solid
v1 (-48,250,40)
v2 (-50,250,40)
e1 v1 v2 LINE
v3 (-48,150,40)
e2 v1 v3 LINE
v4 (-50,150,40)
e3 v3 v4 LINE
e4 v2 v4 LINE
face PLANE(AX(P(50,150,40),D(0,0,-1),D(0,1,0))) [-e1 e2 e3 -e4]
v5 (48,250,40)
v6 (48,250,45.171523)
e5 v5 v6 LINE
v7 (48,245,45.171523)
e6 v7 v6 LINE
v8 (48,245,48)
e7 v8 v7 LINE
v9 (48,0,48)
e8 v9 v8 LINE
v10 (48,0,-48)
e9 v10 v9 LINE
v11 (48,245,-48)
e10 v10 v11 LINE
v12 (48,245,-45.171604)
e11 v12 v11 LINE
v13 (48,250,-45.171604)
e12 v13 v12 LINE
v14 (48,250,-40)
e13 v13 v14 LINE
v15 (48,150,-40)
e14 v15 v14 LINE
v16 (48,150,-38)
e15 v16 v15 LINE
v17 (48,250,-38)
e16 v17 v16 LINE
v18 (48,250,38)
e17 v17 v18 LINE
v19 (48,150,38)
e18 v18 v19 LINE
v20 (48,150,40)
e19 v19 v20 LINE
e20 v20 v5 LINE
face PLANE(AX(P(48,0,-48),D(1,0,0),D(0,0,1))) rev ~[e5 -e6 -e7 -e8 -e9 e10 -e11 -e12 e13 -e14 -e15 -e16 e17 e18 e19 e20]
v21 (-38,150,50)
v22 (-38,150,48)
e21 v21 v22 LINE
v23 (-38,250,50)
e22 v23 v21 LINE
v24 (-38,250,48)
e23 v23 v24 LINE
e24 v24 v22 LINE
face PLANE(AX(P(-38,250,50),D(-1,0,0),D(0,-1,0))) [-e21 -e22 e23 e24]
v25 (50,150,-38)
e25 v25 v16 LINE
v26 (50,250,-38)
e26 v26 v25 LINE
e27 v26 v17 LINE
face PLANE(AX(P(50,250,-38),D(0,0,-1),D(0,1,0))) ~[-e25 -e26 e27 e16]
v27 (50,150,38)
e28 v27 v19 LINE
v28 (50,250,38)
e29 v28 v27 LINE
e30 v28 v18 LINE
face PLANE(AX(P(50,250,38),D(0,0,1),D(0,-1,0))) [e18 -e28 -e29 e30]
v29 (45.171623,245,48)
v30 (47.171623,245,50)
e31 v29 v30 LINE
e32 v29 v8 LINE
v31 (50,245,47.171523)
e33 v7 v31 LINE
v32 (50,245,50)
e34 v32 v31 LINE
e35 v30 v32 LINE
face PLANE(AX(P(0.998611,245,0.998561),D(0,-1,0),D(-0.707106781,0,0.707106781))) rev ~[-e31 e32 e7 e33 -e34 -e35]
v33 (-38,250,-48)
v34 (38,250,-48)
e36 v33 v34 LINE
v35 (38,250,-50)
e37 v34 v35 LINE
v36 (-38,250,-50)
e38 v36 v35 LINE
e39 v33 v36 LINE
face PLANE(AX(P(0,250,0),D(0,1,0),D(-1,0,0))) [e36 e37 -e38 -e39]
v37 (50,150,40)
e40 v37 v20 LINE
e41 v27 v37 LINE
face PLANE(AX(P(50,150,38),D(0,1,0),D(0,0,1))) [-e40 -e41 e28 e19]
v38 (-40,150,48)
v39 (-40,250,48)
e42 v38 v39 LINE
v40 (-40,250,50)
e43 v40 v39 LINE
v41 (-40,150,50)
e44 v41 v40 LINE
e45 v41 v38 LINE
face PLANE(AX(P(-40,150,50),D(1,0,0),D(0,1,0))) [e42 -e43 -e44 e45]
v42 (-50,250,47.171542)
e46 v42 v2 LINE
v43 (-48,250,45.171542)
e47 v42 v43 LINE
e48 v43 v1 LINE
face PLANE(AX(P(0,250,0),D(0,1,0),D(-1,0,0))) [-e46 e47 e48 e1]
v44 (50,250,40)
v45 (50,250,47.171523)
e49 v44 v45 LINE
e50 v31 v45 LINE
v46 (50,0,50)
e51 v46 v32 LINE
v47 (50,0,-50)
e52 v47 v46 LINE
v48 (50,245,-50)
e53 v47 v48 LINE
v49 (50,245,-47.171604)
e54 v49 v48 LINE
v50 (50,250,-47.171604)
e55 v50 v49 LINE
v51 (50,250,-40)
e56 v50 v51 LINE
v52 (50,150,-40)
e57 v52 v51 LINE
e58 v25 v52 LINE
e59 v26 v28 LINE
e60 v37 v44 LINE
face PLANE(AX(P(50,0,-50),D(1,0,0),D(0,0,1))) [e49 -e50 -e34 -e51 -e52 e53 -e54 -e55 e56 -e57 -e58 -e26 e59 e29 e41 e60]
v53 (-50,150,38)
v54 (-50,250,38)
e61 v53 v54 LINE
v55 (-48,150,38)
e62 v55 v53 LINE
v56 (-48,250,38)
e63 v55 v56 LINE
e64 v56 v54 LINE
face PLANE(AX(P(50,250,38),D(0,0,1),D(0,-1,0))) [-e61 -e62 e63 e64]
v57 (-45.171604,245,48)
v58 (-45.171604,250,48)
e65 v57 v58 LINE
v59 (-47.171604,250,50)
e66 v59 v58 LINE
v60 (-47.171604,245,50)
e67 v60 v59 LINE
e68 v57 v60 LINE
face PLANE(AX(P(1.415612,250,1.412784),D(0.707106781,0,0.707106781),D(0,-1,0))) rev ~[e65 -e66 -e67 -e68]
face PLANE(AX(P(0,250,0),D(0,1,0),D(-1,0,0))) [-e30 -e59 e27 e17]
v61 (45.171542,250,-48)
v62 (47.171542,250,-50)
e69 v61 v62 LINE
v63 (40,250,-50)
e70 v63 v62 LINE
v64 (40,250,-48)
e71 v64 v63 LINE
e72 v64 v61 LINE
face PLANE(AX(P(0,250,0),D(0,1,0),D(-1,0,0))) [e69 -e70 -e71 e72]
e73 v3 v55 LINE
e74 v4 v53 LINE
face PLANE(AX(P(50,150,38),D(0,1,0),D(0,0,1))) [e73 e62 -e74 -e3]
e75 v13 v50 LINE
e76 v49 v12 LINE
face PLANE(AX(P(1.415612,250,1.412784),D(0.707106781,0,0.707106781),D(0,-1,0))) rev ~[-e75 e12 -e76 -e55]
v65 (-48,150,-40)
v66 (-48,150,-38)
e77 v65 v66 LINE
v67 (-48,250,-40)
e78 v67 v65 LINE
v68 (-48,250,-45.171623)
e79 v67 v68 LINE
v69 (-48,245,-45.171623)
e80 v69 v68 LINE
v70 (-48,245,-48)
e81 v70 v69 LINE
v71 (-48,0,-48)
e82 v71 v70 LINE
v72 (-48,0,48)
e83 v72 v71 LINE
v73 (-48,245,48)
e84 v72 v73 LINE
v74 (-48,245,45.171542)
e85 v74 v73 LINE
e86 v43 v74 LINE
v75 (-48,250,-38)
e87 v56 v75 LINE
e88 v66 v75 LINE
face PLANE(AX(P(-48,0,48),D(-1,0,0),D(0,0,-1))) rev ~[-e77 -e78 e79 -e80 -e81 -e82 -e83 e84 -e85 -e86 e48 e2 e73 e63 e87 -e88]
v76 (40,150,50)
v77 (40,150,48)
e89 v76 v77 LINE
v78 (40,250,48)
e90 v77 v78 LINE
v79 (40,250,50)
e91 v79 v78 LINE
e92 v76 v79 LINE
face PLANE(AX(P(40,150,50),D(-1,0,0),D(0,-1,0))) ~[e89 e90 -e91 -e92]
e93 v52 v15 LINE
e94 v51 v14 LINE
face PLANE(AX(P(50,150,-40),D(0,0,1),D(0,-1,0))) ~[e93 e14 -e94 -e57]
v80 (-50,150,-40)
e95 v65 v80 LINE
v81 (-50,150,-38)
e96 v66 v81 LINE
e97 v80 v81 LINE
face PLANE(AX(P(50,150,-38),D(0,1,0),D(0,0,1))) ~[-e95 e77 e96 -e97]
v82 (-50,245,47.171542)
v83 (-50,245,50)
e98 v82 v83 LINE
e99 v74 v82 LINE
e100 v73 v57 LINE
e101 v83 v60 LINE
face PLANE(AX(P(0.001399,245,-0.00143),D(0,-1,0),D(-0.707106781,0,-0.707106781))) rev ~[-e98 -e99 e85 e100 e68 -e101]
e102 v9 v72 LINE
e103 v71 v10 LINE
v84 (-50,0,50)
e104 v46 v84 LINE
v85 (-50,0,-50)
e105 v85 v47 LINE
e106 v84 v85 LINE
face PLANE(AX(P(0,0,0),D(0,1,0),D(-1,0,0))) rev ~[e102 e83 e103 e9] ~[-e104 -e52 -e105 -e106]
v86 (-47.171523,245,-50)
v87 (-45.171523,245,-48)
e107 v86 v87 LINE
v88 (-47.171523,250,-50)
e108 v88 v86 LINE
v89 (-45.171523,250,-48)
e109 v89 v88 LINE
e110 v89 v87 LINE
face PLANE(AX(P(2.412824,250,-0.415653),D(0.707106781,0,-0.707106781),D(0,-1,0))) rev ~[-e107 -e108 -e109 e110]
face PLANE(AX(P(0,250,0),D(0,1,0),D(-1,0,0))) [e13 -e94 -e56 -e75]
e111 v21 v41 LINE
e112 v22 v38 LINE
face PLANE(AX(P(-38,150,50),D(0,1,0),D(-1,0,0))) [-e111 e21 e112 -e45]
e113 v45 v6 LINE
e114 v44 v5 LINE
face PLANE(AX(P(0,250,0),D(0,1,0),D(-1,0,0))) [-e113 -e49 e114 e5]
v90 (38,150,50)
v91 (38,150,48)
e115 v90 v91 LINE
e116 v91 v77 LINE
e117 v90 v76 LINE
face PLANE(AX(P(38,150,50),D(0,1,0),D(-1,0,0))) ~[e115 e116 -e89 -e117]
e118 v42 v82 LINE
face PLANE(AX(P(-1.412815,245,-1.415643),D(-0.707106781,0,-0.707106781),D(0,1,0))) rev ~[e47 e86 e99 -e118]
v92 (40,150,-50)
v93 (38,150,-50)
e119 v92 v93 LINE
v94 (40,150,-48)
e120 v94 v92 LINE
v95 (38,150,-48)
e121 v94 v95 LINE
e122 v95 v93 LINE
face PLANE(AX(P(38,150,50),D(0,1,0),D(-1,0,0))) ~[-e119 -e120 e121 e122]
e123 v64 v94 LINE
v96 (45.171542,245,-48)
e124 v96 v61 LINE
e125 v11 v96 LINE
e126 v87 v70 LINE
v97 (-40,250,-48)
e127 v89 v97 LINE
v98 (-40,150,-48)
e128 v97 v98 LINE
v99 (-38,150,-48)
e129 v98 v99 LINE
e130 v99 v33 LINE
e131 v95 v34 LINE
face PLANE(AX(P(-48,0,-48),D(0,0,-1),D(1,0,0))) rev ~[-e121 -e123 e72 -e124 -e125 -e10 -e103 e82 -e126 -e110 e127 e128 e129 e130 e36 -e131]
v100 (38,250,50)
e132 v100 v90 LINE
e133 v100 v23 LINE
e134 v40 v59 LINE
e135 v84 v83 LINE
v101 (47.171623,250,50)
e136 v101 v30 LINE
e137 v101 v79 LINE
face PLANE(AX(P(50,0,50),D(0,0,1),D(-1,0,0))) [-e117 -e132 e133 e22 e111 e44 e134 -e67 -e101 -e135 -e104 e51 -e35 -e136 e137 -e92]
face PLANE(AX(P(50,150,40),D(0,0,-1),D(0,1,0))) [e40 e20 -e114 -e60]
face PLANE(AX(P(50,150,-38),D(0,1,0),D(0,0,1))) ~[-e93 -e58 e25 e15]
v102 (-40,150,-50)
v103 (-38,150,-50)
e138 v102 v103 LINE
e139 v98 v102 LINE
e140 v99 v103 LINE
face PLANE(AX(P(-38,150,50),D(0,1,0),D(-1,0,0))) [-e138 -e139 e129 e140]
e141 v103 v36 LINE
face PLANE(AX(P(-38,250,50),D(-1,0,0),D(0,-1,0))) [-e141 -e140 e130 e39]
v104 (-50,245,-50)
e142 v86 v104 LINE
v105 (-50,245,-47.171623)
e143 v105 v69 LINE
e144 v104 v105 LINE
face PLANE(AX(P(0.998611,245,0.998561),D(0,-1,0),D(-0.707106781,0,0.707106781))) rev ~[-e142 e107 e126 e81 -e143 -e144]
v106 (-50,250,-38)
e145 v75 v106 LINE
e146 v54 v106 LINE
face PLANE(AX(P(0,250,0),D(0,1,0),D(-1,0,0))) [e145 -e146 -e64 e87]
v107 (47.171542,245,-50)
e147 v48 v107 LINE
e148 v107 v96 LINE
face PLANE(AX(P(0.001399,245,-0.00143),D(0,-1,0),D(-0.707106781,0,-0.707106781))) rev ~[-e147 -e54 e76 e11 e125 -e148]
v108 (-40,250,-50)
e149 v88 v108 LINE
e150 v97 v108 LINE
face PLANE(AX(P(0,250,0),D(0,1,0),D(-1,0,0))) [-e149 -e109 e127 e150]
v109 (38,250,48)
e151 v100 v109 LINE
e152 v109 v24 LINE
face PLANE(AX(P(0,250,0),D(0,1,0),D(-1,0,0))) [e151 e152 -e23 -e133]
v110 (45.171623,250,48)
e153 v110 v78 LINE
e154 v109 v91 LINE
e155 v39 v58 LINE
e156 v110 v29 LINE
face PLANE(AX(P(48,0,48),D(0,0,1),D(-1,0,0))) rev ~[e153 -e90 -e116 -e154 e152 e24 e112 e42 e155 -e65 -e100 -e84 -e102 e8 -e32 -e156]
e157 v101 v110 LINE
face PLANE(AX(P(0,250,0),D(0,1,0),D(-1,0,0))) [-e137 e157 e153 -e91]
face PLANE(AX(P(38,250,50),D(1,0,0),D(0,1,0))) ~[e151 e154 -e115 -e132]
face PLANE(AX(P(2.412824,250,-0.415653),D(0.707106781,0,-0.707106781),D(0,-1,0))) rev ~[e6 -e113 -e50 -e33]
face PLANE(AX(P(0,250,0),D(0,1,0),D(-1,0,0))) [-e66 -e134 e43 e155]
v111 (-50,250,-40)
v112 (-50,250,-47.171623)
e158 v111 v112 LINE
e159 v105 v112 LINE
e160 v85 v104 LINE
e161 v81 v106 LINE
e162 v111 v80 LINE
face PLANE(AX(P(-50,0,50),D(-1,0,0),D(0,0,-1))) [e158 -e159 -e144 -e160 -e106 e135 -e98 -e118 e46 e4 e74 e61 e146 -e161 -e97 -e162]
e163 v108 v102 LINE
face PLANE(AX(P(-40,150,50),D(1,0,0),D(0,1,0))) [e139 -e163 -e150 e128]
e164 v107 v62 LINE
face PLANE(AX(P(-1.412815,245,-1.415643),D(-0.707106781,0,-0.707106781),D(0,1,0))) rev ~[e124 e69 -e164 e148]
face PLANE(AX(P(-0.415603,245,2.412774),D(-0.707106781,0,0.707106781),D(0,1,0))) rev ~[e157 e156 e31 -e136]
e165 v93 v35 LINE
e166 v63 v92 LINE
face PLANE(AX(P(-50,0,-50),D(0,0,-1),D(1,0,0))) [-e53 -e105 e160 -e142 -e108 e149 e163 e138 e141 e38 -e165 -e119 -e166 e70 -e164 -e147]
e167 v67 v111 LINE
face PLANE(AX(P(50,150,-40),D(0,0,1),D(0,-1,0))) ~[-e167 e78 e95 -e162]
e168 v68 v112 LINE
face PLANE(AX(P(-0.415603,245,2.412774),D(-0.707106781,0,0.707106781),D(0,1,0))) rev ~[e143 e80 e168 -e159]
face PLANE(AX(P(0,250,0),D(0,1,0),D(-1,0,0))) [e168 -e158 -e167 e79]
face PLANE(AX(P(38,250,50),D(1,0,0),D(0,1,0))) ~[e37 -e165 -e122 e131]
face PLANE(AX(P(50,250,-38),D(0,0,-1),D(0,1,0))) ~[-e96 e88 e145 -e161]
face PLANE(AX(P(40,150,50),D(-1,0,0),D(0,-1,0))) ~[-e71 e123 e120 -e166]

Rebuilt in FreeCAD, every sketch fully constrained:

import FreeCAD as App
import Part
import Sketcher
from FreeCAD import Vector

doc = App.newDocument("Part")
body = doc.addObject("PartDesign::Body", "Body")

# Sketch on XZ plane
sketch1 = body.newObject("Sketcher::SketchObject", "Sketch")
sketch1.AttachmentSupport = (doc.getObject("XZ_Plane"), [""])
sketch1.MapMode = "FlatFace"
sketch1.addGeometry(Part.LineSegment(Vector(-50, 50, 0), Vector(50, 50, 0)), False)
sketch1.addGeometry(Part.LineSegment(Vector(50, 50, 0), Vector(50, -50, 0)), False)
sketch1.addGeometry(Part.LineSegment(Vector(50, -50, 0), Vector(-50, -50, 0)), False)
sketch1.addGeometry(Part.LineSegment(Vector(-50, -50, 0), Vector(-50, 50, 0)), False)
sketch1.addGeometry(Part.LineSegment(Vector(48, -48, 0), Vector(48, 48, 0)), False)
sketch1.addGeometry(Part.LineSegment(Vector(48, 48, 0), Vector(-48, 48, 0)), False)
sketch1.addGeometry(Part.LineSegment(Vector(-48, 48, 0), Vector(-48, -48, 0)), False)
sketch1.addGeometry(Part.LineSegment(Vector(-48, -48, 0), Vector(48, -48, 0)), False)
sketch1.addConstraint(Sketcher.Constraint("Coincident", 0, 2, 1, 1))
sketch1.addConstraint(Sketcher.Constraint("Coincident", 1, 2, 2, 1))
sketch1.addConstraint(Sketcher.Constraint("Coincident", 2, 2, 3, 1))
sketch1.addConstraint(Sketcher.Constraint("Coincident", 3, 2, 0, 1))
sketch1.addConstraint(Sketcher.Constraint("Coincident", 4, 2, 5, 1))
sketch1.addConstraint(Sketcher.Constraint("Coincident", 5, 2, 6, 1))
sketch1.addConstraint(Sketcher.Constraint("Coincident", 6, 2, 7, 1))
sketch1.addConstraint(Sketcher.Constraint("Coincident", 7, 2, 4, 1))
sketch1.addConstraint(Sketcher.Constraint("Horizontal", 0))
sketch1.addConstraint(Sketcher.Constraint("Vertical", 1))
sketch1.addConstraint(Sketcher.Constraint("Horizontal", 2))
sketch1.addConstraint(Sketcher.Constraint("Vertical", 3))
sketch1.addConstraint(Sketcher.Constraint("Vertical", 4))
sketch1.addConstraint(Sketcher.Constraint("Horizontal", 5))
sketch1.addConstraint(Sketcher.Constraint("Vertical", 6))
sketch1.addConstraint(Sketcher.Constraint("Horizontal", 7))
sketch1.addConstraint(Sketcher.Constraint("Symmetric", 0, 2, 2, 2, -1, 1))
sketch1.addConstraint(Sketcher.Constraint("Symmetric", 4, 2, 6, 2, -1, 1))
sketch1.addConstraint(Sketcher.Constraint("Equal", 2, 1))
sketch1.addConstraint(Sketcher.Constraint("Equal", 7, 4))
sketch1.addConstraint(Sketcher.Constraint("DistanceX", 0, 1, 0, 2, 100.0))
sketch1.addConstraint(Sketcher.Constraint("DistanceX", 4, 2, 0, 2, 2.0))
pad1 = body.newObject("PartDesign::Pad", "Pad")
pad1.Profile = sketch1
pad1.Length = 250
pad1.Reversed = True

# Sketch on YZ plane
sketch2 = body.newObject("Sketcher::SketchObject", "Sketch001")
sketch2.AttachmentSupport = (doc.getObject("YZ_Plane"), [""])
sketch2.MapMode = "FlatFace"
sketch2.AttachmentOffset = App.Placement(Vector(0, 0, 50), App.Rotation())
sketch2.addGeometry(Part.LineSegment(Vector(250, 38, 0), Vector(250, 40, 0)), False)
sketch2.addGeometry(Part.LineSegment(Vector(250, 40, 0), Vector(150, 40, 0)), False)
sketch2.addGeometry(Part.LineSegment(Vector(150, 40, 0), Vector(150, 38, 0)), False)
sketch2.addGeometry(Part.LineSegment(Vector(150, 38, 0), Vector(250, 38, 0)), False)
sketch2.addConstraint(Sketcher.Constraint("Coincident", 0, 2, 1, 1))
sketch2.addConstraint(Sketcher.Constraint("Coincident", 1, 2, 2, 1))
sketch2.addConstraint(Sketcher.Constraint("Coincident", 2, 2, 3, 1))
sketch2.addConstraint(Sketcher.Constraint("Coincident", 3, 2, 0, 1))
sketch2.addConstraint(Sketcher.Constraint("Vertical", 0))
sketch2.addConstraint(Sketcher.Constraint("Horizontal", 1))
sketch2.addConstraint(Sketcher.Constraint("Vertical", 2))
sketch2.addConstraint(Sketcher.Constraint("Horizontal", 3))
sketch2.addConstraint(Sketcher.Constraint("DistanceX", 1, 2, 1, 1, 100.0))
sketch2.addConstraint(Sketcher.Constraint("DistanceY", 0, 1, 0, 2, 2.0))
sketch2.addConstraint(Sketcher.Constraint("DistanceX", -1, 1, 0, 2, 250.0))
sketch2.addConstraint(Sketcher.Constraint("DistanceY", -1, 1, 0, 2, 40.0))
pocket1 = body.newObject("PartDesign::Pocket", "Pocket")
pocket1.Profile = sketch2
pocket1.Length = 220
doc.recompute()

mirrored = body.newObject("PartDesign::Mirrored", "Mirrored")
mirrored.Originals = [pocket1]
mirrored.MirrorPlane = (doc.getObject("XY_Plane"), [""])
body.Tip = mirrored

# Sketch on XY plane
sketch3 = body.newObject("Sketcher::SketchObject", "Sketch002")
sketch3.AttachmentSupport = (doc.getObject("XY_Plane"), [""])
sketch3.MapMode = "FlatFace"
sketch3.AttachmentOffset = App.Placement(Vector(0, 0, 50), App.Rotation())
sketch3.addGeometry(Part.LineSegment(Vector(-38, 250, 0), Vector(-40, 250, 0)), False)
sketch3.addGeometry(Part.LineSegment(Vector(-40, 250, 0), Vector(-40, 150, 0)), False)
sketch3.addGeometry(Part.LineSegment(Vector(-40, 150, 0), Vector(-38, 150, 0)), False)
sketch3.addGeometry(Part.LineSegment(Vector(-38, 150, 0), Vector(-38, 250, 0)), False)
sketch3.addConstraint(Sketcher.Constraint("Coincident", 0, 2, 1, 1))
sketch3.addConstraint(Sketcher.Constraint("Coincident", 1, 2, 2, 1))
sketch3.addConstraint(Sketcher.Constraint("Coincident", 2, 2, 3, 1))
sketch3.addConstraint(Sketcher.Constraint("Coincident", 3, 2, 0, 1))
sketch3.addConstraint(Sketcher.Constraint("Horizontal", 0))
sketch3.addConstraint(Sketcher.Constraint("Vertical", 1))
sketch3.addConstraint(Sketcher.Constraint("Horizontal", 2))
sketch3.addConstraint(Sketcher.Constraint("Vertical", 3))
sketch3.addConstraint(Sketcher.Constraint("DistanceX", 0, 2, 0, 1, 2.0))
sketch3.addConstraint(Sketcher.Constraint("DistanceY", 1, 2, 1, 1, 100.0))
sketch3.addConstraint(Sketcher.Constraint("DistanceX", 0, 2, -1, 1, 40.0))
sketch3.addConstraint(Sketcher.Constraint("DistanceY", -1, 1, 0, 2, 250.0))
pocket2 = body.newObject("PartDesign::Pocket", "Pocket001")
pocket2.Profile = sketch3
pocket2.Length = 220
doc.recompute()

mirrored2 = body.newObject("PartDesign::Mirrored", "Mirrored001")
mirrored2.Originals = [pocket2]
mirrored2.MirrorPlane = (doc.getObject("YZ_Plane"), [""])
body.Tip = mirrored2

# Sketch on an angled plane
sketch4 = body.newObject("Sketcher::SketchObject", "Sketch003")
sketch4.Placement = App.Placement(Vector(50, 104, 50), App.Rotation(Vector(0, -1, 0), Vector(0.707106781, 0, 0.707106781), Vector(-0.707106781, 0, 0.707106781), "ZXY"))
sketch4.addGeometry(Part.LineSegment(Vector(-146, -72.7, 0), Vector(-141, -72.7, 0)), False)
sketch4.addGeometry(Part.LineSegment(Vector(-141, -72.7, 0), Vector(-141, -68.7, 0)), False)
sketch4.addGeometry(Part.LineSegment(Vector(-141, -68.7, 0), Vector(-146, -68.7, 0)), False)
sketch4.addGeometry(Part.LineSegment(Vector(-146, -68.7, 0), Vector(-146, -72.7, 0)), False)
sketch4.addConstraint(Sketcher.Constraint("Coincident", 0, 2, 1, 1))
sketch4.addConstraint(Sketcher.Constraint("Coincident", 1, 2, 2, 1))
sketch4.addConstraint(Sketcher.Constraint("Coincident", 2, 2, 3, 1))
sketch4.addConstraint(Sketcher.Constraint("Coincident", 3, 2, 0, 1))
sketch4.addConstraint(Sketcher.Constraint("Horizontal", 0))
sketch4.addConstraint(Sketcher.Constraint("Vertical", 1))
sketch4.addConstraint(Sketcher.Constraint("Horizontal", 2))
sketch4.addConstraint(Sketcher.Constraint("Vertical", 3))
sketch4.addConstraint(Sketcher.Constraint("DistanceX", 0, 1, 0, 2, 5.0))
sketch4.addConstraint(Sketcher.Constraint("DistanceY", 1, 1, 1, 2, 4.0))
sketch4.addConstraint(Sketcher.Constraint("DistanceX", 0, 2, -1, 1, 141.0))
sketch4.addConstraint(Sketcher.Constraint("DistanceY", 0, 2, -1, 1, 72.7107))
pocket3 = body.newObject("PartDesign::Pocket", "Pocket002")
pocket3.Profile = sketch4
pocket3.Length = 220
pocket3.Midplane = True

# Sketch on an angled plane
sketch5 = body.newObject("Sketcher::SketchObject", "Sketch004")
sketch5.Placement = App.Placement(Vector(-48, 104, 50), App.Rotation(Vector(0, 1, 0), Vector(-0.707106781, 0, 0.707106781), Vector(0.707106781, 0, 0.707106781), "ZXY"))
sketch5.addGeometry(Part.LineSegment(Vector(146, -67.3, 0), Vector(141, -67.3, 0)), False)
sketch5.addGeometry(Part.LineSegment(Vector(141, -67.3, 0), Vector(141, -71.3, 0)), False)
sketch5.addGeometry(Part.LineSegment(Vector(141, -71.3, 0), Vector(146, -71.3, 0)), False)
sketch5.addGeometry(Part.LineSegment(Vector(146, -71.3, 0), Vector(146, -67.3, 0)), False)
sketch5.addConstraint(Sketcher.Constraint("Coincident", 0, 2, 1, 1))
sketch5.addConstraint(Sketcher.Constraint("Coincident", 1, 2, 2, 1))
sketch5.addConstraint(Sketcher.Constraint("Coincident", 2, 2, 3, 1))
sketch5.addConstraint(Sketcher.Constraint("Coincident", 3, 2, 0, 1))
sketch5.addConstraint(Sketcher.Constraint("Horizontal", 0))
sketch5.addConstraint(Sketcher.Constraint("Vertical", 1))
sketch5.addConstraint(Sketcher.Constraint("Horizontal", 2))
sketch5.addConstraint(Sketcher.Constraint("Vertical", 3))
sketch5.addConstraint(Sketcher.Constraint("DistanceX", 0, 2, 0, 1, 5.0))
sketch5.addConstraint(Sketcher.Constraint("DistanceY", 1, 2, 1, 1, 4.0))
sketch5.addConstraint(Sketcher.Constraint("DistanceX", -1, 1, 0, 2, 141.0))
sketch5.addConstraint(Sketcher.Constraint("DistanceY", 0, 2, -1, 1, 67.2965))
pocket4 = body.newObject("PartDesign::Pocket", "Pocket003")
pocket4.Profile = sketch5
pocket4.Length = 220
pocket4.Midplane = True

doc.recompute()
